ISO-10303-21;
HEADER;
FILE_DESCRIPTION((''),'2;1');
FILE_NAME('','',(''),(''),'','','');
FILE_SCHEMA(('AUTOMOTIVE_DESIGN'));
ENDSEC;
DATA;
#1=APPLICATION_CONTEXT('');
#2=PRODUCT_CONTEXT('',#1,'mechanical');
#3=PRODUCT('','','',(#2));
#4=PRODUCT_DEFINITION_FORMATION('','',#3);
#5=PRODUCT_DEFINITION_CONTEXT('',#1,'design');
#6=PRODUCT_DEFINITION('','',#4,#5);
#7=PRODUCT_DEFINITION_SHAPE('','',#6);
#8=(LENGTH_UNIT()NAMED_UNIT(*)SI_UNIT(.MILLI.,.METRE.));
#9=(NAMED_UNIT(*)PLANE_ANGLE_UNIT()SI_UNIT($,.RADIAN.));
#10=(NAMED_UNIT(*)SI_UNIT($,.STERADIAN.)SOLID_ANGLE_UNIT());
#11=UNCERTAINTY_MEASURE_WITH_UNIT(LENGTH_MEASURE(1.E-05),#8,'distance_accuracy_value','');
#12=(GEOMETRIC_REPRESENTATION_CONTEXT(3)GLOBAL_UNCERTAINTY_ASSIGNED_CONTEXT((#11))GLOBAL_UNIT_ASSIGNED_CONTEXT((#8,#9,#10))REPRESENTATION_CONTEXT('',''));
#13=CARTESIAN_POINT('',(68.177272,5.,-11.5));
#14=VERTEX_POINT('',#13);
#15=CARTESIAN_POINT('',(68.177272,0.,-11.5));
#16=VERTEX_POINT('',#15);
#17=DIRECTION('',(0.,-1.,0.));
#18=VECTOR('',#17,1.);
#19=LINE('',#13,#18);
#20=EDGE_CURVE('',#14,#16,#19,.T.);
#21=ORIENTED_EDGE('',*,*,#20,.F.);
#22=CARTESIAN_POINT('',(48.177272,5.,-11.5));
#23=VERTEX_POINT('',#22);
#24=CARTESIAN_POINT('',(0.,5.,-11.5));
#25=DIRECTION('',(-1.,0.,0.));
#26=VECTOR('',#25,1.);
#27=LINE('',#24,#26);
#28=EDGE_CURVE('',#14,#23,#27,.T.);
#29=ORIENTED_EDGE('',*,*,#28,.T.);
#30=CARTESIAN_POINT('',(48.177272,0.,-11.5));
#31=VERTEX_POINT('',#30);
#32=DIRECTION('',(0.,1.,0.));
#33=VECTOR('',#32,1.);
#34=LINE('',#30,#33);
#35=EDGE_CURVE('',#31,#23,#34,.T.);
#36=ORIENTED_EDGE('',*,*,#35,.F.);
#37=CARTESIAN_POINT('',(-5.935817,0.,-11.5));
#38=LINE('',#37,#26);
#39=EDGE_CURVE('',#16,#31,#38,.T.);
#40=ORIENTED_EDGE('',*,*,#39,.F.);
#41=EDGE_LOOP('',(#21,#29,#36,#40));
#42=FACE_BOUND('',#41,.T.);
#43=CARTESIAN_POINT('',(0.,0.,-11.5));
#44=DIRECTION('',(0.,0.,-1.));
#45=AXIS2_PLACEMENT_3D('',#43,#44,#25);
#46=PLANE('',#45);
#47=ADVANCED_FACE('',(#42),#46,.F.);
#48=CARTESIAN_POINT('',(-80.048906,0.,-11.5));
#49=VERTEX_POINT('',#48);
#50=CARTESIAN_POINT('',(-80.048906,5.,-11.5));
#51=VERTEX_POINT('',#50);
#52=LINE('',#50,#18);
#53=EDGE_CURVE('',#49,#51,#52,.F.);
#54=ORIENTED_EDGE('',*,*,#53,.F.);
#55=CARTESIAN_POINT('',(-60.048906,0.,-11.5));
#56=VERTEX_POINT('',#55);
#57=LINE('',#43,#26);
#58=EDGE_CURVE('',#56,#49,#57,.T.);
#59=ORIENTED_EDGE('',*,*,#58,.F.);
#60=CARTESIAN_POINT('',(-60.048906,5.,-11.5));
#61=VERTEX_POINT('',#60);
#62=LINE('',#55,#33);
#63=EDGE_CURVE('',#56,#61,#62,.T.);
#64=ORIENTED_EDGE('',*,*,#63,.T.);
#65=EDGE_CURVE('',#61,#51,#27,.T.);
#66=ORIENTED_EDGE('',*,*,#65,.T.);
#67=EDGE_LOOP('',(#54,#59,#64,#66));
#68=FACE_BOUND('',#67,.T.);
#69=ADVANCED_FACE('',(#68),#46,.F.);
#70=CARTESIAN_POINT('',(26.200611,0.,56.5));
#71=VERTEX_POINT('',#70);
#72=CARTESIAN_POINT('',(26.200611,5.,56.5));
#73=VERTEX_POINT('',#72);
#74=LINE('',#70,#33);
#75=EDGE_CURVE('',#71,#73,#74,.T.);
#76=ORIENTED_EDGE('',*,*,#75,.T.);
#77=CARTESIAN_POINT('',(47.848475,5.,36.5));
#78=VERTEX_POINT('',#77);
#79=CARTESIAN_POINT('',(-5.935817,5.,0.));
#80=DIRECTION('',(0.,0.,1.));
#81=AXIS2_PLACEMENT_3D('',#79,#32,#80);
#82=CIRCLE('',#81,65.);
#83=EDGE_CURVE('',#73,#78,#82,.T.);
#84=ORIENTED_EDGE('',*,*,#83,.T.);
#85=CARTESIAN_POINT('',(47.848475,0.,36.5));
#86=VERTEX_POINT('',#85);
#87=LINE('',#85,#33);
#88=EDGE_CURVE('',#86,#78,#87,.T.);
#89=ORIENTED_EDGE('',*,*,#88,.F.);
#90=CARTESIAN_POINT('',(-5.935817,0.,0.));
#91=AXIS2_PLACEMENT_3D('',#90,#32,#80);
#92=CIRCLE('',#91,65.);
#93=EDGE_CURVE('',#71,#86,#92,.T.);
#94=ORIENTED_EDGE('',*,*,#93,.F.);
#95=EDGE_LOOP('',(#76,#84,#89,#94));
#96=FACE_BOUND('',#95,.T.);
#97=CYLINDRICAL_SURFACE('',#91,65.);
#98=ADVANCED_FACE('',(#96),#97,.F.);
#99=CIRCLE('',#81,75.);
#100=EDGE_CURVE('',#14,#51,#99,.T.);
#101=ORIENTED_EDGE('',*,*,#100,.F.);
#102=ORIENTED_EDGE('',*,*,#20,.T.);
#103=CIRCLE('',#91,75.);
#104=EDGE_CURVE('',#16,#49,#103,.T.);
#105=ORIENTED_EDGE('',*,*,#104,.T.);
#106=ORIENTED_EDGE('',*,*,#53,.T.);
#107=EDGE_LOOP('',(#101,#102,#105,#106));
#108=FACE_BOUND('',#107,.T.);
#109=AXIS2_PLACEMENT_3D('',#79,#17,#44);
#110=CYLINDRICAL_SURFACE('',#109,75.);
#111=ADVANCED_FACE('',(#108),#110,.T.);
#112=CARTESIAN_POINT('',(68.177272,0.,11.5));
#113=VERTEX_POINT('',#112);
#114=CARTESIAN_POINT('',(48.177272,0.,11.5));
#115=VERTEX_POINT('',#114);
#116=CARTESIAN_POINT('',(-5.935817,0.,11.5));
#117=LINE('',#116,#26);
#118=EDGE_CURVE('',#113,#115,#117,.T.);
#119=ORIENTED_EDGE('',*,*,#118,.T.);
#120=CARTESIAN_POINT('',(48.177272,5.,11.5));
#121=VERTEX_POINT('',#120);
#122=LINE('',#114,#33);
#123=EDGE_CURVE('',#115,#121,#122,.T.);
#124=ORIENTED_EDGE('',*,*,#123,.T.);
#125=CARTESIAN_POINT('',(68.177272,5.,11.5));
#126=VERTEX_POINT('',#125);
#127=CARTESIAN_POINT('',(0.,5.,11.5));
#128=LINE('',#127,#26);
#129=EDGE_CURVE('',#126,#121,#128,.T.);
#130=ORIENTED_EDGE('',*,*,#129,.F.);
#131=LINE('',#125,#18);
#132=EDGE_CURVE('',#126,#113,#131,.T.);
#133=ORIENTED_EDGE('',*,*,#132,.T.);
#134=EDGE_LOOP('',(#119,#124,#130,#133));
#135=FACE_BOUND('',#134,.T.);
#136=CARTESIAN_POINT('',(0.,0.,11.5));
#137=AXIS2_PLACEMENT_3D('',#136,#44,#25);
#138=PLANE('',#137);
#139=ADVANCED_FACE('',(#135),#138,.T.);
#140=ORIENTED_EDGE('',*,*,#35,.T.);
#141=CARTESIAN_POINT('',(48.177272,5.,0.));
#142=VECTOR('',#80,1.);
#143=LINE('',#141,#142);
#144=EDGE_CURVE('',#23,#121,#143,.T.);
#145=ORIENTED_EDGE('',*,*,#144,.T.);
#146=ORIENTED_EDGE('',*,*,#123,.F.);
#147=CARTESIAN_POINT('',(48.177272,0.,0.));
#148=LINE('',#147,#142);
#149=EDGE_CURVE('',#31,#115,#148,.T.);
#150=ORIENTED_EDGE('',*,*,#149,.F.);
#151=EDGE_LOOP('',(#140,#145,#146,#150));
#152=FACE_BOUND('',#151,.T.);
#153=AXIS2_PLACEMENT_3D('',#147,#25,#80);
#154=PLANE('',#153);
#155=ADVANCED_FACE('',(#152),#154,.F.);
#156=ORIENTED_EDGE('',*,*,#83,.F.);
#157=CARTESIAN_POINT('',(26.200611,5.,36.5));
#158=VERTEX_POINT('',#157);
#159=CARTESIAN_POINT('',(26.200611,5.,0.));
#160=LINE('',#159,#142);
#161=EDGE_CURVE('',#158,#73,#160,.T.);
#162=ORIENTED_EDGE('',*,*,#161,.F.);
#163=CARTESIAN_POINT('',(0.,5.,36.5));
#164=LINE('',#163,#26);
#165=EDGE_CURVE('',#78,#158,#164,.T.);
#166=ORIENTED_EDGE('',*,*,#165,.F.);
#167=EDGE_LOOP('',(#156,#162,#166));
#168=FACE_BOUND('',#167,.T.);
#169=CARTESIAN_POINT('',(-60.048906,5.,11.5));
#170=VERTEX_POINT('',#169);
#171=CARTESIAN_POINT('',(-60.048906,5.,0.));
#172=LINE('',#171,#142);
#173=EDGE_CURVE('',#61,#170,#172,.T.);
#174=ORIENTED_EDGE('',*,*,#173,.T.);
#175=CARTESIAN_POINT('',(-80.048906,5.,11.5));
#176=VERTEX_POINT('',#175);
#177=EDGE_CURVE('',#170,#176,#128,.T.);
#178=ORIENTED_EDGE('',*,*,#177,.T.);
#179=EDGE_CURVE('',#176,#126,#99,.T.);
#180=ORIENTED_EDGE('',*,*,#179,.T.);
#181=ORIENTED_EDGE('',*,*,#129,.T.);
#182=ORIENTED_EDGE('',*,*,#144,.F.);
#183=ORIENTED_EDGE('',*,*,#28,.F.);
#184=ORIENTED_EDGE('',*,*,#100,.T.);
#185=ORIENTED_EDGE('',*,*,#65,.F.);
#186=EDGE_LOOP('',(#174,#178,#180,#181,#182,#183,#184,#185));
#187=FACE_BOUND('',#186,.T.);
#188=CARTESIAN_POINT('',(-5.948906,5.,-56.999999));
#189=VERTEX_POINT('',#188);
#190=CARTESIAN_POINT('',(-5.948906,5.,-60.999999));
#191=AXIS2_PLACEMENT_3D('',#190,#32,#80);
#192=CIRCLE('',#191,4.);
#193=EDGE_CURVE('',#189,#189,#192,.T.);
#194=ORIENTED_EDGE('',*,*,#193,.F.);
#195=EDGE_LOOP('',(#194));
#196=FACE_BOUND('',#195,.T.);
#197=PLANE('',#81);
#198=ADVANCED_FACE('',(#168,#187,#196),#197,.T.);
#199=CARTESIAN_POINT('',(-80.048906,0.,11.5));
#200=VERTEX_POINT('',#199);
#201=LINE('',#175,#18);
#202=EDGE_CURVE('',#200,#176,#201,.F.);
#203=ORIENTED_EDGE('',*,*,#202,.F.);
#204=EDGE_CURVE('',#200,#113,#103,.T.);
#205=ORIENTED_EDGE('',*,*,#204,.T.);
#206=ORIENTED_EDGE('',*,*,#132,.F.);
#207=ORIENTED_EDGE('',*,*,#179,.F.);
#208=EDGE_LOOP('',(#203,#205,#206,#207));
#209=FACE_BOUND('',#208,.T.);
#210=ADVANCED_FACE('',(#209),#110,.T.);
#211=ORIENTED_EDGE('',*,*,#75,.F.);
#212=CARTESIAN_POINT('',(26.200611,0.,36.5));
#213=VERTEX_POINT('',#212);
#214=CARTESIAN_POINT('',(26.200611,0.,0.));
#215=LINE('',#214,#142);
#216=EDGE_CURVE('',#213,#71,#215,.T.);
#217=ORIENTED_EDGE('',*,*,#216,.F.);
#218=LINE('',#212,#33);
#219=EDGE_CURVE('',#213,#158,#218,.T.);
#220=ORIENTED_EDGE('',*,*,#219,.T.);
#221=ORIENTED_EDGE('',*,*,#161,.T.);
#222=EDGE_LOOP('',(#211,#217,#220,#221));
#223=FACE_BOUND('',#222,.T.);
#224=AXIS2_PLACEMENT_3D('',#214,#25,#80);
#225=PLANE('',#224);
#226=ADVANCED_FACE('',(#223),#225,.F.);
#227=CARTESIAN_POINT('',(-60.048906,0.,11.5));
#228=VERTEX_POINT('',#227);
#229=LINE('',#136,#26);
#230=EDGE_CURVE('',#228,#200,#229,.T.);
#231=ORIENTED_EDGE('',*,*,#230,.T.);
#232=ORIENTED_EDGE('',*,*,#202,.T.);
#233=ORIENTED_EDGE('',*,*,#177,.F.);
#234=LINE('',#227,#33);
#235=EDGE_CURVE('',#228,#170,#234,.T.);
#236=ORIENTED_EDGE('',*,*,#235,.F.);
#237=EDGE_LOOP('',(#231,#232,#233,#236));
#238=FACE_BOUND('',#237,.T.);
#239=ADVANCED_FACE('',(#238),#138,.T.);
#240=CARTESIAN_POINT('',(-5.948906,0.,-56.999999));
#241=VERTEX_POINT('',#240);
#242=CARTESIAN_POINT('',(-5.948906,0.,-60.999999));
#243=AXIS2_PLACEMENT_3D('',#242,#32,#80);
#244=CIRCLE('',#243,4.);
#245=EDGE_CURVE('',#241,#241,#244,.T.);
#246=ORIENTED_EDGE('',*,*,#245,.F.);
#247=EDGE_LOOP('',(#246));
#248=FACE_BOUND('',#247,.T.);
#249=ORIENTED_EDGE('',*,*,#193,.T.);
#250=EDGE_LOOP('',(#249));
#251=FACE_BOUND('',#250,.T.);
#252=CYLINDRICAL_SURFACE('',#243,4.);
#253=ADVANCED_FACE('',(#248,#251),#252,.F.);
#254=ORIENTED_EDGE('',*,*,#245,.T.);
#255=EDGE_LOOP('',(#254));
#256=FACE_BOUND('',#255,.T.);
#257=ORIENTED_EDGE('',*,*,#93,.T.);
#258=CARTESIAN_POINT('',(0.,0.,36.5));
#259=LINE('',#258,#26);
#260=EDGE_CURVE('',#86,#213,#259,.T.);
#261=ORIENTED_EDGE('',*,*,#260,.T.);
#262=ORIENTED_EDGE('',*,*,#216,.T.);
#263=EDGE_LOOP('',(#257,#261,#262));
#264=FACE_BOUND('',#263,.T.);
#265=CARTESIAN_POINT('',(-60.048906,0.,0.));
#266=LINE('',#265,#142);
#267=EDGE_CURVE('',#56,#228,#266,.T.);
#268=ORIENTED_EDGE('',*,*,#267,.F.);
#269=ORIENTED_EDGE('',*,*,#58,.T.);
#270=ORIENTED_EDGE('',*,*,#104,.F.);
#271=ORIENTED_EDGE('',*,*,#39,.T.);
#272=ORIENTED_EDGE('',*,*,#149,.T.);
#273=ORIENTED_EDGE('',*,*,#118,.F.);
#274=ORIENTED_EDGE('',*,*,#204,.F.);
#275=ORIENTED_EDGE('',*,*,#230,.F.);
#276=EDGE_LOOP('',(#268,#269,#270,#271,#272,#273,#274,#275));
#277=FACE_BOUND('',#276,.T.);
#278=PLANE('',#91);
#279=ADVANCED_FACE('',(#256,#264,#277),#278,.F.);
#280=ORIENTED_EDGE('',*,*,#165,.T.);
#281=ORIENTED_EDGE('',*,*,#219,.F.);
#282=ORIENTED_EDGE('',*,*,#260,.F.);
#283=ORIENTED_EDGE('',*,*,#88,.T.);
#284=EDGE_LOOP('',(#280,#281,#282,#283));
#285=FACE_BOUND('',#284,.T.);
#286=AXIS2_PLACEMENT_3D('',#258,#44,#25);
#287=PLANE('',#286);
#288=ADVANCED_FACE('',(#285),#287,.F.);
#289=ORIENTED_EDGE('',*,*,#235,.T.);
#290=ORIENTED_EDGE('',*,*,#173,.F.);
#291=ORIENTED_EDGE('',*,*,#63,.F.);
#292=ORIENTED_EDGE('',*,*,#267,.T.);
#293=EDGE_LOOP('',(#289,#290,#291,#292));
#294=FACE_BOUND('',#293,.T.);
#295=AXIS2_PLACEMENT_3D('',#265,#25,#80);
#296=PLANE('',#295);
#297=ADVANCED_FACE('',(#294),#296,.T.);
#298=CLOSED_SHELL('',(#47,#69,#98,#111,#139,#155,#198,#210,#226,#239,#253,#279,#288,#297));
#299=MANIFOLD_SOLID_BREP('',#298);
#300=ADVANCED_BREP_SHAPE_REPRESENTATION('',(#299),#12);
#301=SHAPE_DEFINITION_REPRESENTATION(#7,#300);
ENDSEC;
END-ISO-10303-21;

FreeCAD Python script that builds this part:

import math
import FreeCAD as App
import Part
import Sketcher
Q = App.Units.Quantity

doc = App.newDocument("Part")
body = doc.addObject("PartDesign::Body", "Body")

sketch1 = doc.addObject("Sketcher::SketchObject", "Sketch")
body.addObject(sketch1)
sketch1.AttachmentSupport = (doc.XZ_Plane, [""])
sketch1.MapMode = "FlatFace"
sketch1.addGeometry(Part.Circle(App.Vector(-5.935817, 0, 0), App.Vector(0, 0, 1), 75), False)
sketch1.addConstraint([
    Sketcher.Constraint("PointOnObject", 0, 3, -1),
    Sketcher.Constraint("Diameter", 0, Q("150 mm")),
    Sketcher.Constraint("DistanceX", 0, 3, -1, 1, Q("5.935817 mm")),
])
pad1 = doc.addObject("PartDesign::Pad", "Pad")
body.addObject(pad1)
pad1.Profile = sketch1
pad1.Length = 5
pad1.Reversed = True

sketch2 = doc.addObject("Sketcher::SketchObject", "Sketch001")
body.addObject(sketch2)
sketch2.AttachmentSupport = (doc.XZ_Plane, [""])
sketch2.MapMode = "FlatFace"
sketch2.AttachmentOffset = App.Placement(App.Vector(0, 0, -5), App.Rotation())
sketch2.addGeometry([
    Part.LineSegment(App.Vector(-89.004044, -11.5, 0), App.Vector(-89.004044, 11.5, 0)),
    Part.LineSegment(App.Vector(-89.004044, 11.5, 0), App.Vector(-60.048906, 11.5, 0)),
    Part.LineSegment(App.Vector(-60.048906, 11.5, 0), App.Vector(-60.048906, -11.5, 0)),
    Part.LineSegment(App.Vector(-60.048906, -11.5, 0), App.Vector(-89.004044, -11.5, 0)),
    Part.LineSegment(App.Vector(48.177272, -11.5, 0), App.Vector(48.177272, 11.5, 0)),
    Part.LineSegment(App.Vector(48.177272, 11.5, 0), App.Vector(83.116271, 11.5, 0)),
    Part.LineSegment(App.Vector(83.116271, 11.5, 0), App.Vector(83.116271, -11.5, 0)),
    Part.LineSegment(App.Vector(83.116271, -11.5, 0), App.Vector(48.177272, -11.5, 0)),
    Part.LineSegment(App.Vector(26.200611, 36.5, 0), App.Vector(26.200611, 56.5, 0)),
    Part.ArcOfCircle(Part.Circle(App.Vector(-5.935817, 0, 0), App.Vector(0, 0, 1), 65), math.radians(34.16226), math.radians(60.369373)),
    Part.LineSegment(App.Vector(47.848475, 36.5, 0), App.Vector(26.200611, 36.5, 0)),
    Part.Circle(App.Vector(-5.948906, -60.999999, 0), App.Vector(0, 0, 1), 4),
], False)
sketch2.addConstraint([
    Sketcher.Constraint("Coincident", 0, 2, 1, 1),
    Sketcher.Constraint("Coincident", 1, 2, 2, 1),
    Sketcher.Constraint("Coincident", 2, 2, 3, 1),
    Sketcher.Constraint("Coincident", 3, 2, 0, 1),
    Sketcher.Constraint("Coincident", 4, 2, 5, 1),
    Sketcher.Constraint("Coincident", 5, 2, 6, 1),
    Sketcher.Constraint("Coincident", 6, 2, 7, 1),
    Sketcher.Constraint("Coincident", 7, 2, 4, 1),
    Sketcher.Constraint("Coincident", 8, 2, 9, 2),
    Sketcher.Constraint("Coincident", 9, 1, 10, 1),
    Sketcher.Constraint("Coincident", 10, 2, 8, 1),
    Sketcher.Constraint("Vertical", 0),
    Sketcher.Constraint("Horizontal", 1),
    Sketcher.Constraint("Vertical", 2),
    Sketcher.Constraint("Horizontal", 3),
    Sketcher.Constraint("Vertical", 4),
    Sketcher.Constraint("Horizontal", 5),
    Sketcher.Constraint("Vertical", 6),
    Sketcher.Constraint("Horizontal", 7),
    Sketcher.Constraint("Vertical", 8),
    Sketcher.Constraint("Horizontal", 10),
    Sketcher.Constraint("PointOnObject", 9, 3, -1),
    Sketcher.Constraint("Horizontal", 1, 2, 4, 2),
    Sketcher.Constraint("Horizontal", 3, 2, 6, 2),
    Sketcher.Constraint("Diameter", 11, Q("8 mm")),
    Sketcher.Constraint("Radius", 9, Q("65 mm")),
    Sketcher.Constraint("DistanceY", 0, 1, 0, 2, Q("23 mm")),
    Sketcher.Constraint("DistanceY", 8, 1, 8, 2, Q("20 mm")),
    Sketcher.Constraint("DistanceY", 11, 3, -1, 1, Q("60.999999 mm")),
    Sketcher.Constraint("DistanceY", 4, 2, 8, 2, Q("45 mm")),
    Sketcher.Constraint("DistanceY", -1, 1, 0, 2, Q("11.5 mm")),
    Sketcher.Constraint("DistanceX", 1, 2, 11, 3, Q("54.1 mm")),
    Sketcher.Constraint("DistanceX", 5, 1, 5, 2, Q("34.938998 mm")),
    Sketcher.Constraint("DistanceX", 1, 1, 1, 2, Q("28.955138 mm")),
    Sketcher.Constraint("DistanceX", -1, 1, 5, 2, Q("83.116271 mm")),
    Sketcher.Constraint("DistanceX", -1, 1, 8, 2, Q("26.200611 mm")),
    Sketcher.Constraint("DistanceX", 11, 3, 9, 3, Q("0.013089 mm")),
])
pocket1 = doc.addObject("PartDesign::Pocket", "Pocket")
body.addObject(pocket1)
pocket1.Profile = sketch2
pocket1.Length = 5
pocket1.Reversed = True

doc.recompute()
